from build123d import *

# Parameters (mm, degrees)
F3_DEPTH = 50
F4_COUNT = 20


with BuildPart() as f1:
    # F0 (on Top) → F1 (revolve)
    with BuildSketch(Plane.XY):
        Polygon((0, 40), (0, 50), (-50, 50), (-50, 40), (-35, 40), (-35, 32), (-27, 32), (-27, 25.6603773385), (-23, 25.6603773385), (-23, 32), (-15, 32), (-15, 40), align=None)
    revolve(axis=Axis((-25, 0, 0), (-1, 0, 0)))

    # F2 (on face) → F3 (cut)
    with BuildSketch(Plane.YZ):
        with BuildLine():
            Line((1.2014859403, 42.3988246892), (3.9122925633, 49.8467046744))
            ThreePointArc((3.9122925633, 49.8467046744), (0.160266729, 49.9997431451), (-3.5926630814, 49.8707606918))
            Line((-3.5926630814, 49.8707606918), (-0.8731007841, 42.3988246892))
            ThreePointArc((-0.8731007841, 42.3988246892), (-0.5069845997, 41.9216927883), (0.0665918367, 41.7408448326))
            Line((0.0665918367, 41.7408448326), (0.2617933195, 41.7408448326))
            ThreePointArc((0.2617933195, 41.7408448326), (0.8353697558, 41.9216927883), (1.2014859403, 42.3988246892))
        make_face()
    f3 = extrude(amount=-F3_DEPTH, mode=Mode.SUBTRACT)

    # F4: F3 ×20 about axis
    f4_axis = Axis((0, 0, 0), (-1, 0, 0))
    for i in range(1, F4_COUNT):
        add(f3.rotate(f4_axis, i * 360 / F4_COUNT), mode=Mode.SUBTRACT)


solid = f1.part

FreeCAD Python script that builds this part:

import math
import FreeCAD as App
import Part
import Sketcher

V = App.Vector
Q = App.Units.Quantity


def add_polygon(sketch, points):
    """Adds a closed chain of lines whose ends are joined by coincident constraints."""
    first, n = sketch.GeometryCount, len(points)
    for a, b in zip(points, points[1:] + points[:1]):
        sketch.addGeometry(Part.LineSegment(App.Vector(*a, 0), App.Vector(*b, 0)), False)
    for i in range(n):
        sketch.addConstraint(Sketcher.Constraint("Coincident", first + i, 2, first + (i + 1) % n, 1))

doc = App.newDocument("Part")
body = doc.addObject("PartDesign::Body", "Body")

# Sketch on XY plane
sketch1 = body.newObject("Sketcher::SketchObject", "Sketch")
sketch1.AttachmentSupport = (doc.getObject("XY_Plane"), [""])
sketch1.MapMode = "FlatFace"
add_polygon(sketch1, [(0, 40), (0, 50), (-50, 50), (-50, 40), (-35, 40), (-35, 32), (-27, 32), (-27, 25.7), (-23, 25.7), (-23, 32), (-15, 32), (-15, 40)])  # lines 0-11
sketch1.addConstraint([
    Sketcher.Constraint("Vertical", 0),
    Sketcher.Constraint("Horizontal", 1),
    Sketcher.Constraint("Vertical", 2),
    Sketcher.Constraint("Horizontal", 3),
    Sketcher.Constraint("Vertical", 4),
    Sketcher.Constraint("Horizontal", 5),
    Sketcher.Constraint("Vertical", 6),
    Sketcher.Constraint("Horizontal", 7),
    Sketcher.Constraint("Vertical", 8),
    Sketcher.Constraint("Horizontal", 9),
    Sketcher.Constraint("Vertical", 10),
    Sketcher.Constraint("Horizontal", 11),
    Sketcher.Constraint("PointOnObject", 0, 2, -2),
    Sketcher.Constraint("Horizontal", 5, 2, 8, 2),
    Sketcher.Constraint("Horizontal", 3, 2, 10, 2),
    Sketcher.Constraint("Equal", 5, 9),
    Sketcher.Constraint("Equal", 3, 11),
    Sketcher.Constraint("Equal", 9, 4),
    Sketcher.Constraint("DistanceX", 1, 2, 1, 1, 50.0),
    Sketcher.Constraint("DistanceX", 3, 1, 3, 2, 15.0),
    Sketcher.Constraint("DistanceX", 5, 1, 5, 2, 8.0),
    Sketcher.Constraint("DistanceY", 0, 1, 0, 2, 10.0),
    Sketcher.Constraint("DistanceY", -1, 1, 0, 2, 50.0),
    Sketcher.Constraint("DistanceY", 6, 2, 6, 1, 6.339623),
])
revolution = body.newObject("PartDesign::Revolution", "Revolution")
revolution.Profile = sketch1
revolution.ReferenceAxis = (sketch1, ["H_Axis"])
revolution.Angle = 360

# Sketch on YZ plane
sketch2 = body.newObject("Sketcher::SketchObject", "Sketch001")
sketch2.AttachmentSupport = (doc.getObject("YZ_Plane"), [""])
sketch2.MapMode = "FlatFace"
sketch2.addGeometry([
    Part.LineSegment(V(1.2, 42.4, 0), V(3.91, 49.85, 0)),  # 0
    Part.ArcOfCircle(Part.Circle(V(0, 0, 0), V(0, 0, 1), 50), math.radians(85.51), math.radians(94.12)),  # 1
    Part.LineSegment(V(-3.59, 49.87, 0), V(-0.87, 42.4, 0)),  # 2
    Part.ArcOfCircle(Part.Circle(V(0.07, 42.74, 0), V(0, 0, 1), 1), math.radians(-160), math.radians(-90)),  # 3
    Part.LineSegment(V(0.07, 41.74, 0), V(0.26, 41.74, 0)),  # 4
    Part.ArcOfCircle(Part.Circle(V(0.26, 42.74, 0), V(0, 0, 1), 1), math.radians(-90), math.radians(-20)),  # 5
], False)
sketch2.addConstraint([
    Sketcher.Constraint("Coincident", 0, 2, 1, 1),
    Sketcher.Constraint("Coincident", 1, 2, 2, 1),
    Sketcher.Constraint("Tangent", 2, 2, 3, 1),
    Sketcher.Constraint("Tangent", 3, 2, 4, 1),
    Sketcher.Constraint("Tangent", 4, 2, 5, 1),
    Sketcher.Constraint("Tangent", 5, 2, 0, 1),
    Sketcher.Constraint("Horizontal", 4),
    Sketcher.Constraint("Coincident", 1, 3, -1, 1),
    Sketcher.Constraint("Equal", 3, 5),
    Sketcher.Constraint("Horizontal", 2, 2, 5, 2),
    Sketcher.Constraint("Radius", 1, 50.0),
    Sketcher.Constraint("Radius", 3, 1.0),
    Sketcher.Constraint("Angle", 0, Q("70 deg")),
    Sketcher.Constraint("DistanceX", 4, 1, 4, 2, 0.195201),
    Sketcher.Constraint("DistanceX", 2, 2, -1, 1, 0.873101),
    Sketcher.Constraint("DistanceX", 5, 3, 0, 2, 3.650499),
])
pocket1 = body.newObject("PartDesign::Pocket", "Pocket")
pocket1.Profile = sketch2
pocket1.Length = 50
doc.recompute()

polarpattern = body.newObject("PartDesign::PolarPattern", "PolarPattern")
polarpattern.Originals = [pocket1]
polarpattern.Axis = (doc.getObject("X_Axis"), [""])
polarpattern.Angle = 360
polarpattern.Occurrences = 20
body.Tip = polarpattern

doc.recompute()
